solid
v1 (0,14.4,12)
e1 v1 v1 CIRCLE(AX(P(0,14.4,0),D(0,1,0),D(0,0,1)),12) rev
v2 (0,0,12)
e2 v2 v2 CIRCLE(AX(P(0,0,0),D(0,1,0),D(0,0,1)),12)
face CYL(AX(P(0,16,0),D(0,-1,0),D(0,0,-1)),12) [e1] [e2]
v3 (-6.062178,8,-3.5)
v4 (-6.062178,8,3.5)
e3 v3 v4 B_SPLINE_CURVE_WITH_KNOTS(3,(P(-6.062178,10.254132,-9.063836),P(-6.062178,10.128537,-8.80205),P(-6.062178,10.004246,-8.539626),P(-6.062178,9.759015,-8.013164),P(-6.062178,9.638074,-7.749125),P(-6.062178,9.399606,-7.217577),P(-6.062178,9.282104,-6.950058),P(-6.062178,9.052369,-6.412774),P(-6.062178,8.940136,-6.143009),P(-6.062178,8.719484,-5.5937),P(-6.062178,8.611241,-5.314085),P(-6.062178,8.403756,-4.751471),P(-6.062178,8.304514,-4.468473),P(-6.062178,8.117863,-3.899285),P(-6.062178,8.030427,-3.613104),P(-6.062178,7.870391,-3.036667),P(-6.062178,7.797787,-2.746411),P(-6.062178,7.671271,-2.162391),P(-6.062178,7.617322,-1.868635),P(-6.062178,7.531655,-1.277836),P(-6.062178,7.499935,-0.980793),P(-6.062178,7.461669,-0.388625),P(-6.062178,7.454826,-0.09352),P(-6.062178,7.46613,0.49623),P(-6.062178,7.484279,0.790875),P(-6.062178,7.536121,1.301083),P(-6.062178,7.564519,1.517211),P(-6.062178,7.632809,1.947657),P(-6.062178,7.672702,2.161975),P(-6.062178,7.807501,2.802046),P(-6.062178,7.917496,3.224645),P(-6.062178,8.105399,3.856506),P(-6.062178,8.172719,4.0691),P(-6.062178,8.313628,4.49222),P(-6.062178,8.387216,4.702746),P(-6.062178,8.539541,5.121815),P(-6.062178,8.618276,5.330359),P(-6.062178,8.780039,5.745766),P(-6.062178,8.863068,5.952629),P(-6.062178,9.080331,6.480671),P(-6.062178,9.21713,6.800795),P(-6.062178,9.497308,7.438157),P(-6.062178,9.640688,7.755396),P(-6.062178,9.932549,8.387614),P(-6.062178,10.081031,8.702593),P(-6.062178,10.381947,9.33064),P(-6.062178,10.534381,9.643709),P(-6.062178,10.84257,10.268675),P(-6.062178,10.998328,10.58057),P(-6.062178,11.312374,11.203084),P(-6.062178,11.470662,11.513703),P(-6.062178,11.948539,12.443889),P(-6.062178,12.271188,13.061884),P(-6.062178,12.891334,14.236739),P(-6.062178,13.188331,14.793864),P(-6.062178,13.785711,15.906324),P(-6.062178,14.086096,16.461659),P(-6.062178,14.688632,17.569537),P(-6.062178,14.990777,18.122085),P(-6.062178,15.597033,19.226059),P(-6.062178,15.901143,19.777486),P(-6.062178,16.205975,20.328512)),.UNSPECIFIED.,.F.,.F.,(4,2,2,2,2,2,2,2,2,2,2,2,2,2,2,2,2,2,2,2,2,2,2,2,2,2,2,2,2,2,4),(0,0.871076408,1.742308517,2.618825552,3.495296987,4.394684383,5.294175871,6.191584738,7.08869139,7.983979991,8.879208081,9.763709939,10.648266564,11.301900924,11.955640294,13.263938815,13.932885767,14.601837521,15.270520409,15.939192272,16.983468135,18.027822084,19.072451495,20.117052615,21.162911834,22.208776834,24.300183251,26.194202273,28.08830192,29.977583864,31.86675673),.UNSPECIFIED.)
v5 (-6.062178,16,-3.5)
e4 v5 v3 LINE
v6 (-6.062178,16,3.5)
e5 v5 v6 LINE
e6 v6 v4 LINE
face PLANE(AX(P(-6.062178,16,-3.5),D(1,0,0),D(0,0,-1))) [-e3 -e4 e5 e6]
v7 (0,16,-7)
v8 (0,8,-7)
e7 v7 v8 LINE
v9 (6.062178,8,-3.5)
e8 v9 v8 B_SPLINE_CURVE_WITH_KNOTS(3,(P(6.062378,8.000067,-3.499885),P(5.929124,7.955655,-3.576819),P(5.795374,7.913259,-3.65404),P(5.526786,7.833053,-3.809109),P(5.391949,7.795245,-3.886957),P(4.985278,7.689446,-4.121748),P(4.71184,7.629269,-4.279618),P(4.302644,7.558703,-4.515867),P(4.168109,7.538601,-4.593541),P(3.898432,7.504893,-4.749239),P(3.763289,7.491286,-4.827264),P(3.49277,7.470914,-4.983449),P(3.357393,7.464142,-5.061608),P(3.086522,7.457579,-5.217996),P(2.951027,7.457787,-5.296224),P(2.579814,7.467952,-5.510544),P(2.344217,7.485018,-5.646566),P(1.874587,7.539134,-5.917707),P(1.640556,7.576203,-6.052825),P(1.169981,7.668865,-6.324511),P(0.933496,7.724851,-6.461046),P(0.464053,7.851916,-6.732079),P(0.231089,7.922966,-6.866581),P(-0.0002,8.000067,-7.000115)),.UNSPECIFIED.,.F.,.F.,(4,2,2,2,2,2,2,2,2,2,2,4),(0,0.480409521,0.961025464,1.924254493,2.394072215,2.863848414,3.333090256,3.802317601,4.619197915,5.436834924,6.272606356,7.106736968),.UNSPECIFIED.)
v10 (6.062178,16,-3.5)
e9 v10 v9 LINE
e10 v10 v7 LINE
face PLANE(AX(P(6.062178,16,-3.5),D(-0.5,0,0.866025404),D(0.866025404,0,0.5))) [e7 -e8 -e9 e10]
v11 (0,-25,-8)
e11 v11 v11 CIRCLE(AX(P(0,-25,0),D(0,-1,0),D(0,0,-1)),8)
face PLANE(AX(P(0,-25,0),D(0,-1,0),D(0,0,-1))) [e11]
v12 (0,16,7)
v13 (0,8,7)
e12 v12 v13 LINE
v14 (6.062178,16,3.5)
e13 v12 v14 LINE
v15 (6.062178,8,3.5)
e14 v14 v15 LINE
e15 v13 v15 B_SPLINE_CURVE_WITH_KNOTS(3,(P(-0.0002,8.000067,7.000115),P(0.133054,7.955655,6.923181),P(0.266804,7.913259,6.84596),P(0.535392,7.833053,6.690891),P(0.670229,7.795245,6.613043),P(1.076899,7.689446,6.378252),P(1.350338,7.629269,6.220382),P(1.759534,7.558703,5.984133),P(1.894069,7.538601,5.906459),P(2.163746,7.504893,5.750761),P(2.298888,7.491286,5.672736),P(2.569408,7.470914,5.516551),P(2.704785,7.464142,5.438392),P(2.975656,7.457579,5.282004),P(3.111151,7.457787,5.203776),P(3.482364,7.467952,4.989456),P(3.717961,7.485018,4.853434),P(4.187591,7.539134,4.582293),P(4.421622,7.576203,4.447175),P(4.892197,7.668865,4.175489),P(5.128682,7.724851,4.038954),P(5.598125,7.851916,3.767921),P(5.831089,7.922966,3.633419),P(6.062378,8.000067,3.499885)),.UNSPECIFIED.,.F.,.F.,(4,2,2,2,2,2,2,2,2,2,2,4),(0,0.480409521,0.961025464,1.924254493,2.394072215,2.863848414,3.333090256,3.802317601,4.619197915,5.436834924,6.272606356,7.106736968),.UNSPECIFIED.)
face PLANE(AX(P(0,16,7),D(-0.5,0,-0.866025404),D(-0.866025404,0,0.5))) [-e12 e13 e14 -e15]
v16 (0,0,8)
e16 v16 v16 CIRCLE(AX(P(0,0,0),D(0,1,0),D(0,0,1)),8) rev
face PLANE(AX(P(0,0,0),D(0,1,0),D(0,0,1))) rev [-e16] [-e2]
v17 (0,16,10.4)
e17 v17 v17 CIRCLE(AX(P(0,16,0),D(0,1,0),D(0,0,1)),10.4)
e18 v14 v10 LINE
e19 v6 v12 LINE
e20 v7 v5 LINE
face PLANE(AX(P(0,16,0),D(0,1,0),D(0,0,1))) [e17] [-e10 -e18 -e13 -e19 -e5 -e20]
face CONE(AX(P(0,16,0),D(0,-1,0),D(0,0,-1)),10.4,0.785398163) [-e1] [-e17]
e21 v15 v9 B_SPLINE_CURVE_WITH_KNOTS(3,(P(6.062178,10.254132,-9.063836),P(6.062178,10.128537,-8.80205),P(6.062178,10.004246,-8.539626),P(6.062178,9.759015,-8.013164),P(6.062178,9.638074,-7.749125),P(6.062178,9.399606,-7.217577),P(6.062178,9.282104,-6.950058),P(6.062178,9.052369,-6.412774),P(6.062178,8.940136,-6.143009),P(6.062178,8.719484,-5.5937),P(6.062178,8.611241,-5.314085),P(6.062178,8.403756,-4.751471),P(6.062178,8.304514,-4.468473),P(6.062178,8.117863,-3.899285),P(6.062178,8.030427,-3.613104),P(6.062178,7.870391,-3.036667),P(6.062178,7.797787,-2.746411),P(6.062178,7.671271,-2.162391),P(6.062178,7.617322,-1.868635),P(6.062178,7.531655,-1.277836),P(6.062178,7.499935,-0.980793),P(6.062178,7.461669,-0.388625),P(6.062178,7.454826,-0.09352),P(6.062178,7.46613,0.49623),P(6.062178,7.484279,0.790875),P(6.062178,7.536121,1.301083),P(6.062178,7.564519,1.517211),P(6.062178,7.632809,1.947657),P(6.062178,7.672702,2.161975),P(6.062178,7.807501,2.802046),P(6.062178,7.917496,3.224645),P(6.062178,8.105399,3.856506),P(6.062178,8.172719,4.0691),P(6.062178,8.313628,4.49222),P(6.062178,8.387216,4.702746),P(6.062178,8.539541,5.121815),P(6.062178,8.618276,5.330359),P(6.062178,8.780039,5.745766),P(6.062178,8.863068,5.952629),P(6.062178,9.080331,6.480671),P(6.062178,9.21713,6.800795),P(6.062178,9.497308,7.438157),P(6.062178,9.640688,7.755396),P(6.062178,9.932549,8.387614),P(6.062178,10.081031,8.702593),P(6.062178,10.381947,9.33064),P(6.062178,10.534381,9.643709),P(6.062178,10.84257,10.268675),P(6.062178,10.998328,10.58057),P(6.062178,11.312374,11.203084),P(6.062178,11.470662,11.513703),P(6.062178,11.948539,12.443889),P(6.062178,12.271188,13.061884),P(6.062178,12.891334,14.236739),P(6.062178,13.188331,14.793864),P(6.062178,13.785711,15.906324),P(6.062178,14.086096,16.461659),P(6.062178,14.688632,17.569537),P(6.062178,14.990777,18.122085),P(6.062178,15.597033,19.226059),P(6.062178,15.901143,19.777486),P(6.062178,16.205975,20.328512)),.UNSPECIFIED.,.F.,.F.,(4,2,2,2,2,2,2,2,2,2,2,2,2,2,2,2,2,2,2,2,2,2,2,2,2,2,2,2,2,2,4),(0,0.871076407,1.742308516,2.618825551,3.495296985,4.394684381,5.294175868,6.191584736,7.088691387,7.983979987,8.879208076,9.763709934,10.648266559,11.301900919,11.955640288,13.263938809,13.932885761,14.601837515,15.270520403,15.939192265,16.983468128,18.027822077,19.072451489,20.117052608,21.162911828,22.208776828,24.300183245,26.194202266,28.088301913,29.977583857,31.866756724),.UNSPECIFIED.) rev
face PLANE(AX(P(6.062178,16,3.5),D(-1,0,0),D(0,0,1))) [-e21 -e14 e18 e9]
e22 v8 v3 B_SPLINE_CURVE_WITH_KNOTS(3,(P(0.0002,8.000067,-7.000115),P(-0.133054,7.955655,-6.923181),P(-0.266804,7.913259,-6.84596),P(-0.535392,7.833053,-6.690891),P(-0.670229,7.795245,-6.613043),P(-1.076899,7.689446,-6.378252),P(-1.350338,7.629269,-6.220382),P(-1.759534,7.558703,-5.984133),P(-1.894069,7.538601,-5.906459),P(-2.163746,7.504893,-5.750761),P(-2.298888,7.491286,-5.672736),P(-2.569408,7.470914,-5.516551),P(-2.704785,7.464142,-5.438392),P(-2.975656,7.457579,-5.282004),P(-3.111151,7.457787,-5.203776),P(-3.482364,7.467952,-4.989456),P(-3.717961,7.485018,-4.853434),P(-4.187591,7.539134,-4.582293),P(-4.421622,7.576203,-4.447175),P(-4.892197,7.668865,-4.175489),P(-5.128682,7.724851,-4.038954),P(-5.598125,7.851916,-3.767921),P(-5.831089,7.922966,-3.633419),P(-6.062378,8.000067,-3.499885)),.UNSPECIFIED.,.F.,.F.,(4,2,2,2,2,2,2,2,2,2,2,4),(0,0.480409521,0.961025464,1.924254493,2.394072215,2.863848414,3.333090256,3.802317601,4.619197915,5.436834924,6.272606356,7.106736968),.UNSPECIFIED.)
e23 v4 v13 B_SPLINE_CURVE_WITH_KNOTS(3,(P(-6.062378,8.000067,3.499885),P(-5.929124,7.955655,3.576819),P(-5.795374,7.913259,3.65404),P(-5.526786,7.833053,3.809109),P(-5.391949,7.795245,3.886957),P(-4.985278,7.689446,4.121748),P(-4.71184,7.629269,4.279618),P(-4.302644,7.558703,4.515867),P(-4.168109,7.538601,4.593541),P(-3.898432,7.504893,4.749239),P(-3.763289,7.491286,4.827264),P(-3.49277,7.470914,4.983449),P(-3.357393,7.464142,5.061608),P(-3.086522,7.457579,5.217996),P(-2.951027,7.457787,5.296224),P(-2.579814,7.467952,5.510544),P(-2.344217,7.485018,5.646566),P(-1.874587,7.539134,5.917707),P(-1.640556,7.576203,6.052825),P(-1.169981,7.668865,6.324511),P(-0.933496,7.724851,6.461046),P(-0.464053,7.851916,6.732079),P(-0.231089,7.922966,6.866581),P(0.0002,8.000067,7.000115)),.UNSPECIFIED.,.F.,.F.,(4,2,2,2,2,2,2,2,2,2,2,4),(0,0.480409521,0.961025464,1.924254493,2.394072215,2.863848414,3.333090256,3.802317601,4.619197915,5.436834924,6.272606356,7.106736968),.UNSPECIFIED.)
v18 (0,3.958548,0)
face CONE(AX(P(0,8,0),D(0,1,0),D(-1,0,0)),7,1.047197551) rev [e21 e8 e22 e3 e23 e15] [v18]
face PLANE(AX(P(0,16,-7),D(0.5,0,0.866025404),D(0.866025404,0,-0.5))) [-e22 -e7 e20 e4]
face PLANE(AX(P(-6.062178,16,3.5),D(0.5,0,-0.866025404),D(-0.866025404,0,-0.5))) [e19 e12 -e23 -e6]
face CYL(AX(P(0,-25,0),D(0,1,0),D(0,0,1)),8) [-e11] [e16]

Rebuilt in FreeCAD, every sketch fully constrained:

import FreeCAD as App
import Part
import Sketcher

V = App.Vector
Q = App.Units.Quantity


def edges_at(feature, points):
    """Names of the edges that pass closest to the given points."""
    edges = feature.Shape.Edges
    near = lambda p: min(range(len(edges)), key=lambda i: edges[i].distToShape(Part.Vertex(*p))[0])
    return sorted({f"Edge{near(p) + 1}" for p in points})

doc = App.newDocument("Part")
body = doc.addObject("PartDesign::Body", "Body")

# Sketch on XZ plane
sketch1 = body.newObject("Sketcher::SketchObject", "Sketch")
sketch1.AttachmentSupport = (doc.getObject("XZ_Plane"), [""])
sketch1.MapMode = "FlatFace"
sketch1.addGeometry([
    Part.Circle(V(0, 0, 0), V(0, 0, 1), 12),  # 0
    Part.LineSegment(V(-6.062178, -3.5, 0), V(0, -7, 0)),  # 1
    Part.LineSegment(V(0, -7, 0), V(6.062178, -3.5, 0)),  # 2
    Part.LineSegment(V(6.062178, -3.5, 0), V(6.062178, 3.5, 0)),  # 3
    Part.LineSegment(V(6.062178, 3.5, 0), V(0, 7, 0)),  # 4
    Part.LineSegment(V(0, 7, 0), V(-6.062178, 3.5, 0)),  # 5
    Part.LineSegment(V(-6.062178, 3.5, 0), V(-6.062178, -3.5, 0)),  # 6
], False)
sketch1.addConstraint([
    Sketcher.Constraint("Coincident", 1, 2, 2, 1),
    Sketcher.Constraint("Coincident", 2, 2, 3, 1),
    Sketcher.Constraint("Coincident", 3, 2, 4, 1),
    Sketcher.Constraint("Coincident", 4, 2, 5, 1),
    Sketcher.Constraint("Coincident", 5, 2, 6, 1),
    Sketcher.Constraint("Coincident", 6, 2, 1, 1),
    Sketcher.Constraint("Vertical", 3),
    Sketcher.Constraint("Vertical", 6),
    Sketcher.Constraint("Coincident", 0, 3, -1, 1),
    Sketcher.Constraint("Symmetric", 1, 2, 4, 2, -1, 1),
    Sketcher.Constraint("Symmetric", 2, 2, 5, 2, -1, 1),
    Sketcher.Constraint("PointOnObject", 1, 2, -2),
    Sketcher.Constraint("Parallel", 1, 4),
    Sketcher.Constraint("Horizontal", 3, 2, 5, 2),
    Sketcher.Constraint("Diameter", 0, Q("24 mm")),
    Sketcher.Constraint("DistanceY", 3, 1, 3, 2, Q("7 mm")),
    Sketcher.Constraint("Angle", 1, Q("-30 deg")),
    Sketcher.Constraint("Distance", 1, Q("7 mm")),
])
pad1 = body.newObject("PartDesign::Pad", "Pad")
pad1.Profile = sketch1
pad1.Length = 16
pad1.Reversed = True
doc.recompute()

chamfer = body.newObject("PartDesign::Chamfer", "Chamfer")
chamfer.Base = (pad1, edges_at(pad1, [(0, 16, -12)]))
chamfer.Size = 1.6

# Sketch on XY plane
sketch2 = body.newObject("Sketcher::SketchObject", "Sketch001")
sketch2.AttachmentSupport = (doc.getObject("XY_Plane"), [""])
sketch2.MapMode = "FlatFace"
sketch2.addGeometry([
    Part.LineSegment(V(0, 3.958548, 0), V(0, 0, 0)),  # 0
    Part.LineSegment(V(0, 0, 0), V(12, 0, 0)),  # 1
    Part.LineSegment(V(12, 0, 0), V(12, 8, 0)),  # 2
    Part.LineSegment(V(12, 8, 0), V(7, 8, 0)),  # 3
    Part.LineSegment(V(7, 8, 0), V(0, 3.958548, 0)),  # 4
], False)
sketch2.addConstraint([
    Sketcher.Constraint("Coincident", 0, 2, 1, 1),
    Sketcher.Constraint("Coincident", 1, 2, 2, 1),
    Sketcher.Constraint("Coincident", 2, 2, 3, 1),
    Sketcher.Constraint("Coincident", 3, 2, 4, 1),
    Sketcher.Constraint("Coincident", 4, 2, 0, 1),
    Sketcher.Constraint("Vertical", 0),
    Sketcher.Constraint("Horizontal", 1),
    Sketcher.Constraint("Vertical", 2),
    Sketcher.Constraint("Horizontal", 3),
    Sketcher.Constraint("Coincident", 0, 2, -1, 1),
    Sketcher.Constraint("DistanceX", 1, 1, 1, 2, Q("12 mm")),
    Sketcher.Constraint("DistanceX", 3, 2, 3, 1, Q("5 mm")),
    Sketcher.Constraint("DistanceY", 2, 1, 2, 2, Q("8 mm")),
    Sketcher.Constraint("Angle", 4, Q("-150 deg")),
])
revolution = body.newObject("PartDesign::Revolution", "Revolution")
revolution.Profile = sketch2
revolution.ReferenceAxis = (sketch2, ["V_Axis"])
revolution.Angle = 360

# Sketch on XZ plane
sketch3 = body.newObject("Sketcher::SketchObject", "Sketch002")
sketch3.AttachmentSupport = (doc.getObject("XZ_Plane"), [""])
sketch3.MapMode = "FlatFace"
sketch3.addGeometry(Part.Circle(V(0, 0, 0), V(0, 0, 1), 8), False)
sketch3.addConstraint([
    Sketcher.Constraint("Coincident", 0, 3, -1, 1),
    Sketcher.Constraint("Diameter", 0, Q("16 mm")),
])
pad2 = body.newObject("PartDesign::Pad", "Pad001")
pad2.Profile = sketch3
pad2.Length = 25

doc.recompute()
